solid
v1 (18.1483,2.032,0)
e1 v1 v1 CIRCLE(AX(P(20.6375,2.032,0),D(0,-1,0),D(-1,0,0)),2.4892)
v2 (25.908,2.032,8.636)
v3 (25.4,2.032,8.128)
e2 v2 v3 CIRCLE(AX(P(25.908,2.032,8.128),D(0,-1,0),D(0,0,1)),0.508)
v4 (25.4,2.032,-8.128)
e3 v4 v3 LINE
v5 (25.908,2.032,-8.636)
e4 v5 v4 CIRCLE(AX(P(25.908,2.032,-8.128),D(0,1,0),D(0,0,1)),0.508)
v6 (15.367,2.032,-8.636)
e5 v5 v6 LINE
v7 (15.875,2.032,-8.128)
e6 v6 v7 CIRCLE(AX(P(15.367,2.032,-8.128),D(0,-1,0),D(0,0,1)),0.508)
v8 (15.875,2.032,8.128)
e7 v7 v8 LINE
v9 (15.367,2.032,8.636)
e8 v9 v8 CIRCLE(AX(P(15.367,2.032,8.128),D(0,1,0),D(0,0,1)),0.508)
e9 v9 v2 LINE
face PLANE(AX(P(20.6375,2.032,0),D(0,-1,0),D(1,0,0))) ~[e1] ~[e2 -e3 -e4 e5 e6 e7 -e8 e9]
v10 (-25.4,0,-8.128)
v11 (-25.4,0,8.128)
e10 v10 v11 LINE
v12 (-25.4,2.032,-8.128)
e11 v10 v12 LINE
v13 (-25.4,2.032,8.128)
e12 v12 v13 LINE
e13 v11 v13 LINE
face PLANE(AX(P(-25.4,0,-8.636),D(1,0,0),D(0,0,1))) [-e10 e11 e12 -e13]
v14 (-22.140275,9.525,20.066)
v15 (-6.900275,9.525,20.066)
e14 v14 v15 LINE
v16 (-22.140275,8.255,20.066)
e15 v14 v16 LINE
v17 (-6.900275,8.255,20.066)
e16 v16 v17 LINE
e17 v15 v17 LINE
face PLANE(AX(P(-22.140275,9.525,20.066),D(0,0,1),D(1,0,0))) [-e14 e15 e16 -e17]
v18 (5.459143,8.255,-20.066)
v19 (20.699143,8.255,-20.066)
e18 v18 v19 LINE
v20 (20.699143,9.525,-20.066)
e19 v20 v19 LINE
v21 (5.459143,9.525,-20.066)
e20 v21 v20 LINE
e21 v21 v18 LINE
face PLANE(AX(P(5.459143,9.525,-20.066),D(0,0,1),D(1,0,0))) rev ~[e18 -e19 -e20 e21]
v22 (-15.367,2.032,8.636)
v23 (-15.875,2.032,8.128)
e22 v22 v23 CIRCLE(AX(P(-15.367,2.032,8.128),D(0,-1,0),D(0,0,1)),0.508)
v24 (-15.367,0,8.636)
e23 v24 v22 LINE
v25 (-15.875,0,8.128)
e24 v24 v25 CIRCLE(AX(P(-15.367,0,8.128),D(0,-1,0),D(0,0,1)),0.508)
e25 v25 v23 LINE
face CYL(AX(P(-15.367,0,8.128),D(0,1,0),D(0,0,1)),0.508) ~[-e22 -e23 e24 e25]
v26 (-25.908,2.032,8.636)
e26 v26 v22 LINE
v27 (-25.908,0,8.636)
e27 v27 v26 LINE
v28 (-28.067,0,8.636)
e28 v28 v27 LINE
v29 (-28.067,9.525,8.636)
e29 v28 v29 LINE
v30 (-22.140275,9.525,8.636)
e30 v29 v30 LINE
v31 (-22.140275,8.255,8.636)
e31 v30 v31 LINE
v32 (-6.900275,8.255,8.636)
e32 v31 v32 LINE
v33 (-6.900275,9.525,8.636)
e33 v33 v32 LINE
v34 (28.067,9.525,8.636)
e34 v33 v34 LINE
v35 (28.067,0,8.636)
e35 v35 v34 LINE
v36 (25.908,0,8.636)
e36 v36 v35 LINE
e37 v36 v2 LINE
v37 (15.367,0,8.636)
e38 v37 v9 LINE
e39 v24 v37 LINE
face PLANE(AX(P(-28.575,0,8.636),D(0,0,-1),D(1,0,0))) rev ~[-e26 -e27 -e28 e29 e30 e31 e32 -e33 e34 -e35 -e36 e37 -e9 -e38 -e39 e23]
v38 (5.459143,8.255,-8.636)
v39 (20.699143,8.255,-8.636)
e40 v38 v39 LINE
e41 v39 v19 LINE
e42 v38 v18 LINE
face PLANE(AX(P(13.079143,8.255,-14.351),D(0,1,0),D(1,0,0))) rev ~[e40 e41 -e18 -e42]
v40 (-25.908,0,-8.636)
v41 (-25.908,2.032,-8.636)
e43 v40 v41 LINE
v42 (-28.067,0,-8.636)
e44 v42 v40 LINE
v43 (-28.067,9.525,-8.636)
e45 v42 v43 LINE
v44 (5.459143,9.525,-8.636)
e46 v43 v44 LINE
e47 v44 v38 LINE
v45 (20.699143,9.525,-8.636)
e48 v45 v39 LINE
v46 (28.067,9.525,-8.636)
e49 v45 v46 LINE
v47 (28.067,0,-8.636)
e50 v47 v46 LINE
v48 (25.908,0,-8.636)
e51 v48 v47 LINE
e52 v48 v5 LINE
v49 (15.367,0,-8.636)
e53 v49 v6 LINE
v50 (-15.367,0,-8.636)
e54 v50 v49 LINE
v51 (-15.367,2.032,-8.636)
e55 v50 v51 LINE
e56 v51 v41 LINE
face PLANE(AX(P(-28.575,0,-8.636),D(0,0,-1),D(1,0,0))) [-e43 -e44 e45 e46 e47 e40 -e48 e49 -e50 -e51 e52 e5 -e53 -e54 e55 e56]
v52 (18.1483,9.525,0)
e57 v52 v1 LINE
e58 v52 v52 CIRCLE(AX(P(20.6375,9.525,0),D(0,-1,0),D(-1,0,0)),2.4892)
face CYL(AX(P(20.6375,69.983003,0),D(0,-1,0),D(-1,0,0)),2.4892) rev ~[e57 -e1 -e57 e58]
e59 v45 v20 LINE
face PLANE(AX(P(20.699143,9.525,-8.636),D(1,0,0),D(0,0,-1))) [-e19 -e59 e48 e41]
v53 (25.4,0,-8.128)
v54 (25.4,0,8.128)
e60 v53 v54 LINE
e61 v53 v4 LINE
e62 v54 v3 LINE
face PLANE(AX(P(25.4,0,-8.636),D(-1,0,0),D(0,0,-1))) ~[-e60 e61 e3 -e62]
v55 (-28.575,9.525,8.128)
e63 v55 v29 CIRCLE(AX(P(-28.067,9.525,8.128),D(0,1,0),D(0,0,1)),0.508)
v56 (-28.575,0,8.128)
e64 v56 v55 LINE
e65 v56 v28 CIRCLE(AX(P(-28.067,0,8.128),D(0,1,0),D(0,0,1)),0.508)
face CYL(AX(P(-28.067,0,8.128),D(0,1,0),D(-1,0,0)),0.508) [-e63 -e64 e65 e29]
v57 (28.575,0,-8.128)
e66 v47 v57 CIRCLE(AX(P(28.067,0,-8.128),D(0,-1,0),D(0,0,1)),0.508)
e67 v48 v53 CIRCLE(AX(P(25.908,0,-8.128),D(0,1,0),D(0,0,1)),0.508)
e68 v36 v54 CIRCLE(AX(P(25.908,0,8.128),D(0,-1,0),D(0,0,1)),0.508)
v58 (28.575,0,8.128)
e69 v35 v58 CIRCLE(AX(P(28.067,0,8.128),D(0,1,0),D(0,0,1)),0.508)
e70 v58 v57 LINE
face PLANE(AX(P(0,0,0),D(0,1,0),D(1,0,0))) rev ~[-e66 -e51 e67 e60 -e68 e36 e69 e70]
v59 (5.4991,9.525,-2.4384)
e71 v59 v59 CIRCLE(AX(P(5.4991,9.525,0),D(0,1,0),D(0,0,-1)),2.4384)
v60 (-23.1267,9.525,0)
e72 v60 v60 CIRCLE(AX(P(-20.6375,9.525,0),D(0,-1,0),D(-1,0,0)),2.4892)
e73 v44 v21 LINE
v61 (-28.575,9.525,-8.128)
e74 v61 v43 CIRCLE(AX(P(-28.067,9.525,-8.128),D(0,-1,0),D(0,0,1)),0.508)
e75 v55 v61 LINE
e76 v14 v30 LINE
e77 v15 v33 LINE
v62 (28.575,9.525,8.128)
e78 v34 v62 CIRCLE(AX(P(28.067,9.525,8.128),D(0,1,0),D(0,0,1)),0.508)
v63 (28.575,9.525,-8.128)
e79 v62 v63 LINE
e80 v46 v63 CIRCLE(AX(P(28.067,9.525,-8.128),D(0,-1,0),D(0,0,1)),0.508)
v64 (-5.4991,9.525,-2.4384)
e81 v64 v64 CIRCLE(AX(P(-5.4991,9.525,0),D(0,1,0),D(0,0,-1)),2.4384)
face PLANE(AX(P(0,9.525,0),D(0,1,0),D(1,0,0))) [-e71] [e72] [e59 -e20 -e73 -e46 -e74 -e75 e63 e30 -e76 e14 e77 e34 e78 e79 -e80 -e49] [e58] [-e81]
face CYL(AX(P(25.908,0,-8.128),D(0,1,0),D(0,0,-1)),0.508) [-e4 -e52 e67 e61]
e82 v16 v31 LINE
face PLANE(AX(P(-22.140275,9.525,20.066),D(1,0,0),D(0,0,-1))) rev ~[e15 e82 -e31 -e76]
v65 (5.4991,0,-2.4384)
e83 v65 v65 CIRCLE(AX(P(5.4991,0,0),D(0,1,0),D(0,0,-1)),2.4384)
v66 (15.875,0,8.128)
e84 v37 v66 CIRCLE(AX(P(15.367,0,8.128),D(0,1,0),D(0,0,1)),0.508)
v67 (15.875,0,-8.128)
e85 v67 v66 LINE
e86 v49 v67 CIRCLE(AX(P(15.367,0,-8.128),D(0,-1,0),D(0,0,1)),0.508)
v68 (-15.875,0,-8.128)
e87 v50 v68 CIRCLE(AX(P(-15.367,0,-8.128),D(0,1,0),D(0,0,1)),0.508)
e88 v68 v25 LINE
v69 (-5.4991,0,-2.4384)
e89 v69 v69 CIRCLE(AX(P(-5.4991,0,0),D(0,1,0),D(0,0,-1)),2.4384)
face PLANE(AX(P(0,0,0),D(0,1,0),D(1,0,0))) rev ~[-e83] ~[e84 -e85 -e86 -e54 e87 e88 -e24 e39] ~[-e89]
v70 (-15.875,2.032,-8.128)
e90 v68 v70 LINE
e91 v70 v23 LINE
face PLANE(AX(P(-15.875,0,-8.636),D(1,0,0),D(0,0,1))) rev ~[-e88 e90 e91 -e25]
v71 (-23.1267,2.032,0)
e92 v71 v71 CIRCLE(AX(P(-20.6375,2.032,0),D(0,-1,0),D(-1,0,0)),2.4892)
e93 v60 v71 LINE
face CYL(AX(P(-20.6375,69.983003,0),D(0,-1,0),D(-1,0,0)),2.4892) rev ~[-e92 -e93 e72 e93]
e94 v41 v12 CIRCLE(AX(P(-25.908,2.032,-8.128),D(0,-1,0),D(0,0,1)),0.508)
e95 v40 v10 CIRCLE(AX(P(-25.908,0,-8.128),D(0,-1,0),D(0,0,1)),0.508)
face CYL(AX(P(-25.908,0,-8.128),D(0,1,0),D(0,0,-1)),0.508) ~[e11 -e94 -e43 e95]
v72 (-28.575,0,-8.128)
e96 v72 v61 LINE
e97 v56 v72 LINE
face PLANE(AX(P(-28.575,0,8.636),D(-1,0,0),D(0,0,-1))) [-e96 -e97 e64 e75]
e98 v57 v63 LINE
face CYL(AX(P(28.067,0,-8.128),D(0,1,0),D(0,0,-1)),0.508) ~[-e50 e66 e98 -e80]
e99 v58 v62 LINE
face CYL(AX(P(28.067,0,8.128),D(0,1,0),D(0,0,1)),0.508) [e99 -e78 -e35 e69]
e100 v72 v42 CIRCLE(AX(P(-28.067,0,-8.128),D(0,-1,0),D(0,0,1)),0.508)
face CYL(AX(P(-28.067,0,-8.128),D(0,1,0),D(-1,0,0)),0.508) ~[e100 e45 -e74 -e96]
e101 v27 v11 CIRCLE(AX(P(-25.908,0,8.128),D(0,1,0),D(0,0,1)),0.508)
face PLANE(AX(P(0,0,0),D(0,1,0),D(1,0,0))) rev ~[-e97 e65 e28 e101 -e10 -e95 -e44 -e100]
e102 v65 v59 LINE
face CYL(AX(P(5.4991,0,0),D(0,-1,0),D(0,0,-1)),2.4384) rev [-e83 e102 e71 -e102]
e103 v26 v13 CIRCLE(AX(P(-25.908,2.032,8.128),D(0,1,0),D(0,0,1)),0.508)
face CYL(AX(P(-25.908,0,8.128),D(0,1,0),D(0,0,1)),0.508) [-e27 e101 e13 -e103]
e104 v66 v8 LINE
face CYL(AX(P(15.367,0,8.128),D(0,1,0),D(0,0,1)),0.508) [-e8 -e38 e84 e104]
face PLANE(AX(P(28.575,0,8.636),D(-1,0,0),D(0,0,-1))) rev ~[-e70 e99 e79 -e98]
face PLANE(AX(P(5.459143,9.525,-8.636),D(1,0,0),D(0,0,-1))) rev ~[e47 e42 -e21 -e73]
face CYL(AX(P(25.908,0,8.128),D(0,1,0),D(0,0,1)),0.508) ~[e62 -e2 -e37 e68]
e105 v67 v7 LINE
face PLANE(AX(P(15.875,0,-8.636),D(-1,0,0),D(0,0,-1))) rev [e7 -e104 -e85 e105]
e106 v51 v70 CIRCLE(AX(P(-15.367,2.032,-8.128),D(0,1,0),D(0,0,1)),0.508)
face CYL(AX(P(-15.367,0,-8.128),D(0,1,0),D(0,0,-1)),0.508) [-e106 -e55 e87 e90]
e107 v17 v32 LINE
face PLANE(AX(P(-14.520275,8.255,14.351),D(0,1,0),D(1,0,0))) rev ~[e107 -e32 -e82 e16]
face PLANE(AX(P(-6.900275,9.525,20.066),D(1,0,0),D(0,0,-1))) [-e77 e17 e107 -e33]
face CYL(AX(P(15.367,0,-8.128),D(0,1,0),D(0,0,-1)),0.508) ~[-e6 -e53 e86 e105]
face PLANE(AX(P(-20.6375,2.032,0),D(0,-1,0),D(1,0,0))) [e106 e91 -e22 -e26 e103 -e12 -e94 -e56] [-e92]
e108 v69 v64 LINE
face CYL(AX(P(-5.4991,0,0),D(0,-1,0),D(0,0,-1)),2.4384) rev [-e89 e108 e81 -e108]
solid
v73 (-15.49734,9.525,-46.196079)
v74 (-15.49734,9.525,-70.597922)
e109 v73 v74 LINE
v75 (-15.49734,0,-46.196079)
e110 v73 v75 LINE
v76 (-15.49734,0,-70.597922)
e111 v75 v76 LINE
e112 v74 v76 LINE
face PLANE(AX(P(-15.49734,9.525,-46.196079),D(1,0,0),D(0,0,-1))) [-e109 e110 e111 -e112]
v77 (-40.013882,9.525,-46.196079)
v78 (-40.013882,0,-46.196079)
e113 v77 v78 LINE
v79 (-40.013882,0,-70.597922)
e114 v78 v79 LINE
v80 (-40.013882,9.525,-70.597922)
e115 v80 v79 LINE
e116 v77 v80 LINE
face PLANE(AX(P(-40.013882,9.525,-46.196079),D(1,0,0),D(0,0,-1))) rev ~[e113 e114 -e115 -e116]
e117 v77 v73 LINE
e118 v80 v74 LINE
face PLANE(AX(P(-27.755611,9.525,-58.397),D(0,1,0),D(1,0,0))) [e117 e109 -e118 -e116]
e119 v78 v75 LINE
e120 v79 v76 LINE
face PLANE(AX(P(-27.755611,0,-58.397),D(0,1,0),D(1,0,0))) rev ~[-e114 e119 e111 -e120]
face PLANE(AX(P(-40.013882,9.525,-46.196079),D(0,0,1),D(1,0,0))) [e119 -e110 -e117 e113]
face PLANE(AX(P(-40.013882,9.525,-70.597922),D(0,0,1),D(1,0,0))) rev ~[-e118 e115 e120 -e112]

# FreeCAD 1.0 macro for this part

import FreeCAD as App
import Part
import Sketcher

V = App.Vector
Q = App.Units.Quantity


def edges_at(feature, points):
    """Names of the edges that pass closest to the given points."""
    edges = feature.Shape.Edges
    near = lambda p: min(range(len(edges)), key=lambda i: edges[i].distToShape(Part.Vertex(*p))[0])
    return sorted({f"Edge{near(p) + 1}" for p in points})

doc = App.newDocument("Part")
body = doc.addObject("PartDesign::Body", "Body")

# Sketch on XZ plane
sketch1 = body.newObject("Sketcher::SketchObject", "Sketch")
sketch1.AttachmentSupport = (doc.getObject("XZ_Plane"), [""])
sketch1.MapMode = "FlatFace"
sketch1.addGeometry([
    Part.LineSegment(V(-28.6, -8.6, 0), V(-28.6, 8.6, 0)),  # 0
    Part.LineSegment(V(-28.6, 8.6, 0), V(28.6, 8.6, 0)),  # 1
    Part.LineSegment(V(28.6, 8.6, 0), V(28.6, -8.6, 0)),  # 2
    Part.LineSegment(V(28.6, -8.6, 0), V(-28.6, -8.6, 0)),  # 3
    Part.Circle(V(-5.5, 0, 0), V(0, 0, 1), 2.4),  # 4
    Part.Circle(V(5.5, 0, 0), V(0, 0, 1), 2.4),  # 5
], False)
sketch1.addConstraint([
    Sketcher.Constraint("Coincident", 0, 2, 1, 1),
    Sketcher.Constraint("Coincident", 1, 2, 2, 1),
    Sketcher.Constraint("Coincident", 2, 2, 3, 1),
    Sketcher.Constraint("Coincident", 3, 2, 0, 1),
    Sketcher.Constraint("Vertical", 0),
    Sketcher.Constraint("Horizontal", 1),
    Sketcher.Constraint("Vertical", 2),
    Sketcher.Constraint("Horizontal", 3),
    Sketcher.Constraint("Equal", 4, 5),
    Sketcher.Constraint("Symmetric", 4, 3, 5, 3, -1, 1),
    Sketcher.Constraint("Symmetric", 0, 2, 2, 2, -1, 1),
    Sketcher.Constraint("PointOnObject", 4, 3, -1),
    Sketcher.Constraint("Diameter", 4, Q("0.192 in")),
    Sketcher.Constraint("DistanceX", 1, 1, 1, 2, Q("2.25 in")),
    Sketcher.Constraint("DistanceY", 0, 1, 0, 2, Q("0.68 in")),
    Sketcher.Constraint("DistanceX", 4, 3, 5, 3, Q("0.433 in")),
])
pad1 = body.newObject("PartDesign::Pad", "Pad")
pad1.Profile = sketch1
pad1.Length = Q("0.375 in")
pad1.Reversed = True

# Sketch on XZ plane
sketch2 = body.newObject("Sketcher::SketchObject", "Sketch001")
sketch2.AttachmentSupport = (doc.getObject("XZ_Plane"), [""])
sketch2.MapMode = "FlatFace"
sketch2.AttachmentOffset = App.Placement(V(0, 0, -0.375 * 25.4), App.Rotation())
sketch2.addGeometry([
    Part.Circle(V(-20.6, 0, 0), V(0, 0, 1), 2.5),
    Part.Circle(V(20.6, 0, 0), V(0, 0, 1), 2.5),
], False)
sketch2.addConstraint([
    Sketcher.Constraint("Equal", 0, 1),
    Sketcher.Constraint("Symmetric", 0, 3, 1, 3, -1, 1),
    Sketcher.Constraint("PointOnObject", 0, 3, -1),
    Sketcher.Constraint("Diameter", 0, Q("0.196 in")),
    Sketcher.Constraint("DistanceX", 0, 3, -1, 1, Q("0.8125 in")),
])
doc.recompute()
hole = body.newObject("PartDesign::Hole", "Hole")
hole.Profile = sketch2
hole.ThreadType = "None"
hole.Diameter = Q("0.196 in")
hole.DepthType = "ThroughAll"
hole.Reversed = True

# Sketch on XZ plane
sketch3 = body.newObject("Sketcher::SketchObject", "Sketch002")
sketch3.AttachmentSupport = (doc.getObject("XZ_Plane"), [""])
sketch3.MapMode = "FlatFace"
sketch3.addGeometry([
    Part.LineSegment(V(-25, 9, 0), V(-25, -9, 0)),
    Part.LineSegment(V(-25, -9, 0), V(-16, -9, 0)),
    Part.LineSegment(V(-16, -9, 0), V(-16, 9, 0)),
    Part.LineSegment(V(-16, 9, 0), V(-25, 9, 0)),
], False)
sketch3.addConstraint([
    Sketcher.Constraint("Coincident", 0, 2, 1, 1),
    Sketcher.Constraint("Coincident", 1, 2, 2, 1),
    Sketcher.Constraint("Coincident", 2, 2, 3, 1),
    Sketcher.Constraint("Coincident", 3, 2, 0, 1),
    Sketcher.Constraint("Vertical", 0),
    Sketcher.Constraint("Horizontal", 1),
    Sketcher.Constraint("Vertical", 2),
    Sketcher.Constraint("Horizontal", 3),
    Sketcher.Constraint("DistanceX", 0, 2, -1, 1, Q("1 in")),
    Sketcher.Constraint("DistanceY", 0, 2, 0, 1, Q("0.68 in")),
    Sketcher.Constraint("DistanceX", 1, 1, 1, 2, Q("0.375 in")),
    Sketcher.Constraint("DistanceY", 0, 2, -1, 1, Q("0.34 in")),
])
pocket1 = body.newObject("PartDesign::Pocket", "Pocket")
pocket1.Profile = sketch3
pocket1.Length = Q("0.08 in")
doc.recompute()

mirrored = body.newObject("PartDesign::Mirrored", "Mirrored")
mirrored.Originals = [pocket1]
mirrored.MirrorPlane = (doc.getObject("YZ_Plane"), [""])
body.Tip = mirrored
doc.recompute()

fillet = body.newObject("PartDesign::Fillet", "Fillet")
fillet.Base = (mirrored, edges_at(mirrored, [
    (-15.875, 1.016, -8.636),
    (-25.4, 1.016, -8.636),
    (-25.4, 1.016, 8.636),
    (-15.875, 1.016, 8.636),
    (25.4, 1.016, -8.636),
    (15.875, 1.016, -8.636),
    (15.875, 1.016, 8.636),
    (25.4, 1.016, 8.636),
    (28.575, 4.763, -8.636),
    (28.575, 4.763, 8.636),
    (-28.575, 4.763, 8.636),
    (-28.575, 4.763, -8.636),
]))
fillet.Radius = Q("0.02 in")

# Sketch on XZ plane
sketch4 = body.newObject("Sketcher::SketchObject", "Sketch003")
sketch4.AttachmentSupport = (doc.getObject("XZ_Plane"), [""])
sketch4.MapMode = "FlatFace"
sketch4.AttachmentOffset = App.Placement(V(0, 0, -0.375 * 25.4), App.Rotation())
sketch4.addGeometry([
    Part.LineSegment(V(5, -20, 0), V(5, -9, 0)),  # 0
    Part.LineSegment(V(5, -9, 0), V(21, -9, 0)),  # 1
    Part.LineSegment(V(21, -9, 0), V(21, -20, 0)),  # 2
    Part.LineSegment(V(21, -20, 0), V(5, -20, 0)),  # 3
    Part.LineSegment(V(-22, 9, 0), V(-22, 20, 0)),  # 4
    Part.LineSegment(V(-22, 20, 0), V(-7, 20, 0)),  # 5
    Part.LineSegment(V(-7, 20, 0), V(-7, 9, 0)),  # 6
    Part.LineSegment(V(-7, 9, 0), V(-22, 9, 0)),  # 7
], False)
sketch4.addConstraint([
    Sketcher.Constraint("Coincident", 0, 2, 1, 1),
    Sketcher.Constraint("Coincident", 1, 2, 2, 1),
    Sketcher.Constraint("Coincident", 2, 2, 3, 1),
    Sketcher.Constraint("Coincident", 3, 2, 0, 1),
    Sketcher.Constraint("Coincident", 4, 2, 5, 1),
    Sketcher.Constraint("Coincident", 5, 2, 6, 1),
    Sketcher.Constraint("Coincident", 6, 2, 7, 1),
    Sketcher.Constraint("Coincident", 7, 2, 4, 1),
    Sketcher.Constraint("Vertical", 0),
    Sketcher.Constraint("Horizontal", 1),
    Sketcher.Constraint("Vertical", 2),
    Sketcher.Constraint("Horizontal", 3),
    Sketcher.Constraint("Vertical", 4),
    Sketcher.Constraint("Horizontal", 5),
    Sketcher.Constraint("Vertical", 6),
    Sketcher.Constraint("Horizontal", 7),
    Sketcher.Constraint("Equal", 3, 5),
    Sketcher.Constraint("Equal", 2, 4),
    Sketcher.Constraint("DistanceX", 1, 1, 1, 2, Q("0.6 in")),
    Sketcher.Constraint("DistanceY", 0, 1, 0, 2, Q("0.45 in")),
    Sketcher.Constraint("DistanceY", 0, 2, -1, 1, Q("0.34 in")),
    Sketcher.Constraint("DistanceY", -1, 1, 4, 2, Q("0.79 in")),
    Sketcher.Constraint("DistanceX", -1, 1, 0, 2, 5.459143),
    Sketcher.Constraint("DistanceX", 4, 2, -1, 1, 22.140275),
])
pad2 = body.newObject("PartDesign::Pad", "Pad001")
pad2.Profile = sketch4
pad2.Length = Q("0.05 in")
body2 = doc.addObject("PartDesign::Body", "Body001")

# Sketch on XZ plane
sketch5 = body2.newObject("Sketcher::SketchObject", "Sketch004")
sketch5.AttachmentSupport = (doc.getObject("XZ_Plane001"), [""])
sketch5.MapMode = "FlatFace"
sketch5.AttachmentOffset = App.Placement(V(0, 0, -0.375 * 25.4), App.Rotation())
sketch5.addGeometry([
    Part.LineSegment(V(-40, -71, 0), V(-40, -46, 0)),
    Part.LineSegment(V(-40, -46, 0), V(-15, -46, 0)),
    Part.LineSegment(V(-15, -46, 0), V(-15, -71, 0)),
    Part.LineSegment(V(-15, -71, 0), V(-40, -71, 0)),
], False)
sketch5.addConstraint([
    Sketcher.Constraint("Coincident", 0, 2, 1, 1),
    Sketcher.Constraint("Coincident", 1, 2, 2, 1),
    Sketcher.Constraint("Coincident", 2, 2, 3, 1),
    Sketcher.Constraint("Coincident", 3, 2, 0, 1),
    Sketcher.Constraint("Vertical", 0),
    Sketcher.Constraint("Horizontal", 1),
    Sketcher.Constraint("Vertical", 2),
    Sketcher.Constraint("Horizontal", 3),
    Sketcher.Constraint("DistanceX", 1, 1, 1, 2, 24.516542),
    Sketcher.Constraint("DistanceY", 0, 1, 0, 2, 24.401843),
    Sketcher.Constraint("DistanceX", 0, 2, -1, 1, 40.013882),
    Sketcher.Constraint("DistanceY", 0, 2, -1, 1, 46.196079),
])
pad3 = body2.newObject("PartDesign::Pad", "Pad002")
pad3.Profile = sketch5
pad3.Length = Q("0.375 in")

doc.recompute()
